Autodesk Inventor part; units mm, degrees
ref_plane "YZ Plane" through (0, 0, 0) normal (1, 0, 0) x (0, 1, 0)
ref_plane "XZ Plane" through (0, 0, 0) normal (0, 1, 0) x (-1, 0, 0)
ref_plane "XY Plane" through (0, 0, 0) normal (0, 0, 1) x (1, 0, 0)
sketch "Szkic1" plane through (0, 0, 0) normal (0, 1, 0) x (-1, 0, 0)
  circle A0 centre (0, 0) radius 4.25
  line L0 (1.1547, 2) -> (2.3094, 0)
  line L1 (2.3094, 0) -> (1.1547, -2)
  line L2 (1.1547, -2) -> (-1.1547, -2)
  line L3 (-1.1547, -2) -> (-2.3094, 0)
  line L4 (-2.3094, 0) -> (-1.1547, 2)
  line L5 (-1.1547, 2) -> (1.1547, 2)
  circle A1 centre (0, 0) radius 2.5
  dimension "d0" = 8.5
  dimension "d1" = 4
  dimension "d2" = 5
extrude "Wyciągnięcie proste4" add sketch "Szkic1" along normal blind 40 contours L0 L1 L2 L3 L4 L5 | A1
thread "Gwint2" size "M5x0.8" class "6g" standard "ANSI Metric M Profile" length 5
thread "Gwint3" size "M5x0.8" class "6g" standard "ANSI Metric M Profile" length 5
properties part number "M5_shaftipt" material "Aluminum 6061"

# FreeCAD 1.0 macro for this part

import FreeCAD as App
import Part
import Sketcher

V = App.Vector
Q = App.Units.Quantity

doc = App.newDocument("Part")
body = doc.addObject("PartDesign::Body", "Body")

# Sketch on XZ plane
sketch1 = body.newObject("Sketcher::SketchObject", "Sketch")
sketch1.AttachmentSupport = (doc.getObject("XZ_Plane"), [""])
sketch1.MapMode = "FlatFace"
sketch1.addGeometry(Part.Circle(V(0, 0, 0), V(0, 0, 1), 2.5), False)
sketch1.addConstraint(Sketcher.Constraint("Coincident", 0, 3, -1, 1))
sketch1.addConstraint(Sketcher.Constraint("Diameter", 0, Q("5 mm")))
pad1 = body.newObject("PartDesign::Pad", "Pad")
pad1.Profile = sketch1
pad1.Length = 40
pad1.Reversed = True

doc.recompute()
